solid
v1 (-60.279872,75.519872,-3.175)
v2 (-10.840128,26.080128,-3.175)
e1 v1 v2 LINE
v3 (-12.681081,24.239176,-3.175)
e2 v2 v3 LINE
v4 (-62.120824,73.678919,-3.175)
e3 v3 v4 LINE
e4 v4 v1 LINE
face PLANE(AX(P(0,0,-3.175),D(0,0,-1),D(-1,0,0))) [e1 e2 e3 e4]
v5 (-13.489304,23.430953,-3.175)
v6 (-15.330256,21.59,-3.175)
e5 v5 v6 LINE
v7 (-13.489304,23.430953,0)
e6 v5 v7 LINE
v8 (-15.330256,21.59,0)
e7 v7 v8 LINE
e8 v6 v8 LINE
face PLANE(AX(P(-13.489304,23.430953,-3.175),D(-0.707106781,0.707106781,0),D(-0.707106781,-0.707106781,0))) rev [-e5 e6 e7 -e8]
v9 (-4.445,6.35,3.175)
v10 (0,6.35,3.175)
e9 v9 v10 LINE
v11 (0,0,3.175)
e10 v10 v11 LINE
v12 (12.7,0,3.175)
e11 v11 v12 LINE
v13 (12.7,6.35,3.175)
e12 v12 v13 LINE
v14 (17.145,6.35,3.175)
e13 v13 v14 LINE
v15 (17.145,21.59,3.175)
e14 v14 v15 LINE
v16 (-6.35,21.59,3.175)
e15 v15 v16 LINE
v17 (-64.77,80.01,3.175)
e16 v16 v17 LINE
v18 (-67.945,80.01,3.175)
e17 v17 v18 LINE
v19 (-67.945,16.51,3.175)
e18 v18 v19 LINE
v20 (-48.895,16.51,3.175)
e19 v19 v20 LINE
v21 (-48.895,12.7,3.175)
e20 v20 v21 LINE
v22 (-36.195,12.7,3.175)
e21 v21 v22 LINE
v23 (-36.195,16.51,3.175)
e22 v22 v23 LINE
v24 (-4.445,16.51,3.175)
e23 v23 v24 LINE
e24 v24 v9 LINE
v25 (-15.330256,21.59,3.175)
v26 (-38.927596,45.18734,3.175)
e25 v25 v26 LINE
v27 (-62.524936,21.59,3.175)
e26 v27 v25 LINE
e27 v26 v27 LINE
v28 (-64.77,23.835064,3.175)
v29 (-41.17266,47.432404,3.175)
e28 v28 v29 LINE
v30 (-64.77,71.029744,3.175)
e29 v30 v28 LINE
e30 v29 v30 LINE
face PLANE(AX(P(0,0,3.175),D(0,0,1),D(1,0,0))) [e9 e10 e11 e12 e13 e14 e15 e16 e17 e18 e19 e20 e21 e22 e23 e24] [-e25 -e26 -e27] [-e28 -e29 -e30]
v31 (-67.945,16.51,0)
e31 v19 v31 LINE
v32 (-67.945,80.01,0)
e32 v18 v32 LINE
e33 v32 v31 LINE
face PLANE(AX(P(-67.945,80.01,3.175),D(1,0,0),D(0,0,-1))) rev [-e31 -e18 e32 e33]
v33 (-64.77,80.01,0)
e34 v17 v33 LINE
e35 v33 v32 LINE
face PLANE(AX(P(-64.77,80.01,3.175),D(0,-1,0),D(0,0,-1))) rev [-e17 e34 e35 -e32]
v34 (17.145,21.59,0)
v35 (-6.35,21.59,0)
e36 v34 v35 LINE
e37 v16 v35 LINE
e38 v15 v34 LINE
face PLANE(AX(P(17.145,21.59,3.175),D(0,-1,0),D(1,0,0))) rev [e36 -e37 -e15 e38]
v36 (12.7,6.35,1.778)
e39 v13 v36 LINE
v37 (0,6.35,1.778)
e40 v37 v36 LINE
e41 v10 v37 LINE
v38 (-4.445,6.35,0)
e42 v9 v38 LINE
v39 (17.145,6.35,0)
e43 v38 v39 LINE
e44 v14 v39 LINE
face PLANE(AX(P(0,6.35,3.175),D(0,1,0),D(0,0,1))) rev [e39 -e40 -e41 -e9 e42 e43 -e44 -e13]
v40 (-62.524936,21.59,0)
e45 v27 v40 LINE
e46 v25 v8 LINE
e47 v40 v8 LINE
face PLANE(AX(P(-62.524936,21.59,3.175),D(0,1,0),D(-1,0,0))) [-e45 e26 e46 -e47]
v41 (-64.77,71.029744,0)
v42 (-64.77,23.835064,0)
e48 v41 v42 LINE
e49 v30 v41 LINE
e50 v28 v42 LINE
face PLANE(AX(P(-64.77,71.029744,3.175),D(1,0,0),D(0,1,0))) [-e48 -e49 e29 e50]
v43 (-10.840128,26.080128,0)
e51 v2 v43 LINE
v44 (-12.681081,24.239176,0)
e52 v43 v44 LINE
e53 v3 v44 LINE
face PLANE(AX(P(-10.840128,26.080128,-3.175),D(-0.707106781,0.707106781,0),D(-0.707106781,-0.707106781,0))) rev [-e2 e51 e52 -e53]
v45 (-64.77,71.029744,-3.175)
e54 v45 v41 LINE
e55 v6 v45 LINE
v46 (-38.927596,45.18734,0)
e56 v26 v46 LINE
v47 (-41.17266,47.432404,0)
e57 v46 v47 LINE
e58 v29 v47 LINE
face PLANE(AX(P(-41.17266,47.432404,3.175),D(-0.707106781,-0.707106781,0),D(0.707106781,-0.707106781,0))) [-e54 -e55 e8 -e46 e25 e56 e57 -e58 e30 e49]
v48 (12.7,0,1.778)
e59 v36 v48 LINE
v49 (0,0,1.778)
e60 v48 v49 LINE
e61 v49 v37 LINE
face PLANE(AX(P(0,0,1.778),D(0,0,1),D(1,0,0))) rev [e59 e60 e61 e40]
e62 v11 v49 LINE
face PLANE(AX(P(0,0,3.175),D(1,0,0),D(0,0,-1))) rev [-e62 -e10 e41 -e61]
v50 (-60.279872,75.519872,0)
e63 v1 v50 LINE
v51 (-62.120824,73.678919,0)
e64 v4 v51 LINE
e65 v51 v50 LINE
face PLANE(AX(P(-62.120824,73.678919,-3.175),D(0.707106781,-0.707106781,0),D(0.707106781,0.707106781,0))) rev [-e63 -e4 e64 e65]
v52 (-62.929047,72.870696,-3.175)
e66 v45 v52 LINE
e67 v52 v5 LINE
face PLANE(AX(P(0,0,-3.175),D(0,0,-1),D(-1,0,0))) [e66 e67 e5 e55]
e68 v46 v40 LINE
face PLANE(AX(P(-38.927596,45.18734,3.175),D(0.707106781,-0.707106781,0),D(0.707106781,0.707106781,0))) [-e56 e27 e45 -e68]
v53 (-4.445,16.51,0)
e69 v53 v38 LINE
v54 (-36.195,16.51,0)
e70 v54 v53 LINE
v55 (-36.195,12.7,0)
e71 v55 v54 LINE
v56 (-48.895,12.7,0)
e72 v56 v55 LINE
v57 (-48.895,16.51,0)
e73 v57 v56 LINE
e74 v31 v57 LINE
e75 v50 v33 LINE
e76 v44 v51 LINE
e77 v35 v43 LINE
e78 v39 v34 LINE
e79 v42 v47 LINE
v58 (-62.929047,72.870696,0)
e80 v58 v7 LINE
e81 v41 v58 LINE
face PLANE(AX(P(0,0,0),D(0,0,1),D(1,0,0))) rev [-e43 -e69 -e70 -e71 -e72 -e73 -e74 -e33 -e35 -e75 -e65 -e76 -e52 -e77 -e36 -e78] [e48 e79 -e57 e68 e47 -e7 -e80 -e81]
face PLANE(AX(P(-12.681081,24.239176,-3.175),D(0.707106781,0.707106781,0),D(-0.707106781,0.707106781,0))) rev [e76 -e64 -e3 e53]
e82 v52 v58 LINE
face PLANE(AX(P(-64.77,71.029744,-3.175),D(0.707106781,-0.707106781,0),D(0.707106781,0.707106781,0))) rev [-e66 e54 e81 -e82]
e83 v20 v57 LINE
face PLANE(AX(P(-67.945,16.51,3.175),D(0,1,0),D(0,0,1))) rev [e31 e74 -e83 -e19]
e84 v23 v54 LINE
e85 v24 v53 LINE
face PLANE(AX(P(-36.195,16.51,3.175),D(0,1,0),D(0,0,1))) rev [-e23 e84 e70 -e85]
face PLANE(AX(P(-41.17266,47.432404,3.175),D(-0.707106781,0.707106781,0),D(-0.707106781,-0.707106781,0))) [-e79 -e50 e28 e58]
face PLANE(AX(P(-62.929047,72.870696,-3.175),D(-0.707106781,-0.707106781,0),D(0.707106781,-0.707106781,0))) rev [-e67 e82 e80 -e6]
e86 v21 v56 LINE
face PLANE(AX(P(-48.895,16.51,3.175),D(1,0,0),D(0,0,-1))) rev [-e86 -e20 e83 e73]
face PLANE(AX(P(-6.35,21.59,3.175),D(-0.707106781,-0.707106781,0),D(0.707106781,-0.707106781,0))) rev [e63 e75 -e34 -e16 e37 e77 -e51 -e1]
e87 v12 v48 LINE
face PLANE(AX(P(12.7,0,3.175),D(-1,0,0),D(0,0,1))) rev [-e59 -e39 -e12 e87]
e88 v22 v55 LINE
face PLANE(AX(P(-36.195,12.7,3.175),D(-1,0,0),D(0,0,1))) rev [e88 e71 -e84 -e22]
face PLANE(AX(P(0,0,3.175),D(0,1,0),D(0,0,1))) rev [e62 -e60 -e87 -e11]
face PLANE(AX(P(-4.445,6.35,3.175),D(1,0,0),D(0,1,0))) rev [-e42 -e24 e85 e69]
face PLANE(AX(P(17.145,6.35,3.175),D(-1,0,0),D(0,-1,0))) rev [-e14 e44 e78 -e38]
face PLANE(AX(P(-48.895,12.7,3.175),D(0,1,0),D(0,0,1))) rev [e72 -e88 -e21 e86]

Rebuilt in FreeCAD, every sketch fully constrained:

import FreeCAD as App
import Part
import Sketcher
from FreeCAD import Vector
Q = App.Units.Quantity

doc = App.newDocument("Part")
body = doc.addObject("PartDesign::Body", "Body")

# Sketch on XY plane
sketch1 = doc.addObject("Sketcher::SketchObject", "Sketch")
body.addObject(sketch1)
sketch1.AttachmentSupport = (doc.XY_Plane, [""])
sketch1.MapMode = "FlatFace"
sketch1.addGeometry(Part.LineSegment(Vector(0, 0, 0), Vector(12.7, 0, 0)), False)
sketch1.addGeometry(Part.LineSegment(Vector(12.7, 0, 0), Vector(12.7, 6.3, 0)), False)
sketch1.addGeometry(Part.LineSegment(Vector(12.7, 6.3, 0), Vector(17.1, 6.3, 0)), False)
sketch1.addGeometry(Part.LineSegment(Vector(17.1, 6.3, 0), Vector(17.1, 21.6, 0)), False)
sketch1.addGeometry(Part.LineSegment(Vector(17.1, 21.6, 0), Vector(-6.3, 21.6, 0)), False)
sketch1.addGeometry(Part.LineSegment(Vector(-6.3, 21.6, 0), Vector(-64.8, 80, 0)), False)
sketch1.addGeometry(Part.LineSegment(Vector(-64.8, 80, 0), Vector(-67.9, 80, 0)), False)
sketch1.addGeometry(Part.LineSegment(Vector(-67.9, 80, 0), Vector(-67.9, 16.5, 0)), False)
sketch1.addGeometry(Part.LineSegment(Vector(-67.9, 16.5, 0), Vector(-48.9, 16.5, 0)), False)
sketch1.addGeometry(Part.LineSegment(Vector(-48.9, 16.5, 0), Vector(-48.9, 12.7, 0)), False)
sketch1.addGeometry(Part.LineSegment(Vector(-48.9, 12.7, 0), Vector(-36.2, 12.7, 0)), False)
sketch1.addGeometry(Part.LineSegment(Vector(-36.2, 12.7, 0), Vector(-36.2, 16.5, 0)), False)
sketch1.addGeometry(Part.LineSegment(Vector(-36.2, 16.5, 0), Vector(-4.4, 16.5, 0)), False)
sketch1.addGeometry(Part.LineSegment(Vector(-4.4, 16.5, 0), Vector(-4.4, 6.3, 0)), False)
sketch1.addGeometry(Part.LineSegment(Vector(-4.4, 6.3, 0), Vector(0, 6.3, 0)), False)
sketch1.addGeometry(Part.LineSegment(Vector(0, 6.3, 0), Vector(0, 0, 0)), False)
sketch1.addGeometry(Part.LineSegment(Vector(-15.3, 21.6, 0), Vector(-62.5, 21.6, 0)), False)
sketch1.addGeometry(Part.LineSegment(Vector(-62.5, 21.6, 0), Vector(-38.9, 45.2, 0)), False)
sketch1.addGeometry(Part.LineSegment(Vector(-38.9, 45.2, 0), Vector(-15.3, 21.6, 0)), False)
sketch1.addGeometry(Part.LineSegment(Vector(-64.8, 23.8, 0), Vector(-64.8, 71, 0)), False)
sketch1.addGeometry(Part.LineSegment(Vector(-64.8, 71, 0), Vector(-41.2, 47.4, 0)), False)
sketch1.addGeometry(Part.LineSegment(Vector(-41.2, 47.4, 0), Vector(-64.8, 23.8, 0)), False)
sketch1.addConstraint(Sketcher.Constraint("Coincident", 0, 2, 1, 1))
sketch1.addConstraint(Sketcher.Constraint("Coincident", 1, 2, 2, 1))
sketch1.addConstraint(Sketcher.Constraint("Coincident", 2, 2, 3, 1))
sketch1.addConstraint(Sketcher.Constraint("Coincident", 3, 2, 4, 1))
sketch1.addConstraint(Sketcher.Constraint("Coincident", 4, 2, 5, 1))
sketch1.addConstraint(Sketcher.Constraint("Coincident", 5, 2, 6, 1))
sketch1.addConstraint(Sketcher.Constraint("Coincident", 6, 2, 7, 1))
sketch1.addConstraint(Sketcher.Constraint("Coincident", 7, 2, 8, 1))
sketch1.addConstraint(Sketcher.Constraint("Coincident", 8, 2, 9, 1))
sketch1.addConstraint(Sketcher.Constraint("Coincident", 9, 2, 10, 1))
sketch1.addConstraint(Sketcher.Constraint("Coincident", 10, 2, 11, 1))
sketch1.addConstraint(Sketcher.Constraint("Coincident", 11, 2, 12, 1))
sketch1.addConstraint(Sketcher.Constraint("Coincident", 12, 2, 13, 1))
sketch1.addConstraint(Sketcher.Constraint("Coincident", 13, 2, 14, 1))
sketch1.addConstraint(Sketcher.Constraint("Coincident", 14, 2, 15, 1))
sketch1.addConstraint(Sketcher.Constraint("Coincident", 15, 2, 0, 1))
sketch1.addConstraint(Sketcher.Constraint("Coincident", 16, 2, 17, 1))
sketch1.addConstraint(Sketcher.Constraint("Coincident", 17, 2, 18, 1))
sketch1.addConstraint(Sketcher.Constraint("Coincident", 18, 2, 16, 1))
sketch1.addConstraint(Sketcher.Constraint("Coincident", 19, 2, 20, 1))
sketch1.addConstraint(Sketcher.Constraint("Coincident", 20, 2, 21, 1))
sketch1.addConstraint(Sketcher.Constraint("Coincident", 21, 2, 19, 1))
sketch1.addConstraint(Sketcher.Constraint("Horizontal", 0))
sketch1.addConstraint(Sketcher.Constraint("Vertical", 1))
sketch1.addConstraint(Sketcher.Constraint("Horizontal", 2))
sketch1.addConstraint(Sketcher.Constraint("Vertical", 3))
sketch1.addConstraint(Sketcher.Constraint("Horizontal", 4))
sketch1.addConstraint(Sketcher.Constraint("Horizontal", 6))
sketch1.addConstraint(Sketcher.Constraint("Vertical", 7))
sketch1.addConstraint(Sketcher.Constraint("Horizontal", 8))
sketch1.addConstraint(Sketcher.Constraint("Vertical", 9))
sketch1.addConstraint(Sketcher.Constraint("Horizontal", 10))
sketch1.addConstraint(Sketcher.Constraint("Vertical", 11))
sketch1.addConstraint(Sketcher.Constraint("Horizontal", 12))
sketch1.addConstraint(Sketcher.Constraint("Vertical", 13))
sketch1.addConstraint(Sketcher.Constraint("Horizontal", 14))
sketch1.addConstraint(Sketcher.Constraint("Vertical", 15))
sketch1.addConstraint(Sketcher.Constraint("Horizontal", 16))
sketch1.addConstraint(Sketcher.Constraint("Vertical", 19))
sketch1.addConstraint(Sketcher.Constraint("Coincident", 15, 2, -1, 1))
sketch1.addConstraint(Sketcher.Constraint("Perpendicular", 5, 17))
sketch1.addConstraint(Sketcher.Constraint("Perpendicular", 17, 18))
sketch1.addConstraint(Sketcher.Constraint("Parallel", 18, 20))
sketch1.addConstraint(Sketcher.Constraint("Perpendicular", 20, 21))
sketch1.addConstraint(Sketcher.Constraint("Horizontal", 8, 2, 11, 2))
sketch1.addConstraint(Sketcher.Constraint("Horizontal", 2, 2, 13, 2))
sketch1.addConstraint(Sketcher.Constraint("Horizontal", 4, 2, 16, 2))
sketch1.addConstraint(Sketcher.Constraint("Vertical", 5, 2, 19, 2))
sketch1.addConstraint(Sketcher.Constraint("Equal", 0, 10))
sketch1.addConstraint(Sketcher.Constraint("Equal", 2, 14))
sketch1.addConstraint(Sketcher.Constraint("Equal", 16, 19))
sketch1.addConstraint(Sketcher.Constraint("Equal", 17, 18))
sketch1.addConstraint(Sketcher.Constraint("DistanceX", 0, 1, 0, 2, Q("0.5 in")))
sketch1.addConstraint(Sketcher.Constraint("DistanceY", 3, 1, 3, 2, Q("0.6 in")))
sketch1.addConstraint(Sketcher.Constraint("DistanceY", 7, 2, 7, 1, Q("2.5 in")))
sketch1.addConstraint(Sketcher.Constraint("DistanceY", 13, 2, 13, 1, Q("0.4 in")))
sketch1.addConstraint(Sketcher.Constraint("DistanceX", 8, 1, 8, 2, Q("0.75 in")))
sketch1.addConstraint(Sketcher.Constraint("DistanceX", 12, 1, 12, 2, Q("1.25 in")))
sketch1.addConstraint(Sketcher.Constraint("DistanceY", 1, 1, 1, 2, Q("0.25 in")))
sketch1.addConstraint(Sketcher.Constraint("DistanceY", 9, 2, 9, 1, Q("0.15 in")))
sketch1.addConstraint(Sketcher.Constraint("DistanceX", 2, 1, 2, 2, Q("0.175 in")))
sketch1.addConstraint(Sketcher.Constraint("DistanceX", 4, 2, 4, 1, Q("0.925 in")))
sketch1.addConstraint(Sketcher.Constraint("DistanceX", 16, 2, 16, 1, 47.19468))
sketch1.addConstraint(Sketcher.Constraint("DistanceX", 16, 2, -1, 1, 62.524936))
sketch1.addConstraint(Sketcher.Constraint("DistanceY", -1, 1, 19, 2, 71.029744))
pad1 = doc.addObject("PartDesign::Pad", "Pad")
body.addObject(pad1)
pad1.Profile = sketch1
pad1.Length = Q("0.125 in")

# Sketch on XY plane
sketch2 = doc.addObject("Sketcher::SketchObject", "Sketch001")
body.addObject(sketch2)
sketch2.AttachmentSupport = (doc.XY_Plane, [""])
sketch2.MapMode = "FlatFace"
sketch2.addGeometry(Part.LineSegment(Vector(13, 6, 0), Vector(13, 0, 0)), False)
sketch2.addGeometry(Part.LineSegment(Vector(13, 0, 0), Vector(0, 0, 0)), False)
sketch2.addGeometry(Part.LineSegment(Vector(0, 0, 0), Vector(0, 6, 0)), False)
sketch2.addGeometry(Part.LineSegment(Vector(0, 6, 0), Vector(13, 6, 0)), False)
sketch2.addConstraint(Sketcher.Constraint("Coincident", 0, 2, 1, 1))
sketch2.addConstraint(Sketcher.Constraint("Coincident", 1, 2, 2, 1))
sketch2.addConstraint(Sketcher.Constraint("Coincident", 2, 2, 3, 1))
sketch2.addConstraint(Sketcher.Constraint("Coincident", 3, 2, 0, 1))
sketch2.addConstraint(Sketcher.Constraint("Vertical", 0))
sketch2.addConstraint(Sketcher.Constraint("Horizontal", 1))
sketch2.addConstraint(Sketcher.Constraint("Vertical", 2))
sketch2.addConstraint(Sketcher.Constraint("Horizontal", 3))
sketch2.addConstraint(Sketcher.Constraint("Coincident", 1, 2, -1, 1))
sketch2.addConstraint(Sketcher.Constraint("DistanceX", 1, 2, 1, 1, Q("0.5 in")))
sketch2.addConstraint(Sketcher.Constraint("DistanceY", 0, 2, 0, 1, Q("0.25 in")))
pocket1 = doc.addObject("PartDesign::Pocket", "Pocket")
body.addObject(pocket1)
pocket1.Profile = sketch2
pocket1.Length = Q("0.07 in")
pocket1.Reversed = True

# Sketch on XY plane
sketch3 = doc.addObject("Sketcher::SketchObject", "Sketch002")
body.addObject(sketch3)
sketch3.AttachmentSupport = (doc.XY_Plane, [""])
sketch3.MapMode = "FlatFace"
sketch3.addGeometry(Part.LineSegment(Vector(-15.3, 21.6, 0), Vector(-64.8, 71, 0)), False)
sketch3.addGeometry(Part.LineSegment(Vector(-64.8, 71, 0), Vector(-62.9, 72.9, 0)), False)
sketch3.addGeometry(Part.LineSegment(Vector(-62.9, 72.9, 0), Vector(-13.5, 23.4, 0)), False)
sketch3.addGeometry(Part.LineSegment(Vector(-13.5, 23.4, 0), Vector(-15.3, 21.6, 0)), False)
sketch3.addGeometry(Part.LineSegment(Vector(-10.8, 26.1, 0), Vector(-12.7, 24.2, 0)), False)
sketch3.addGeometry(Part.LineSegment(Vector(-12.7, 24.2, 0), Vector(-62.1, 73.7, 0)), False)
sketch3.addGeometry(Part.LineSegment(Vector(-62.1, 73.7, 0), Vector(-60.3, 75.5, 0)), False)
sketch3.addGeometry(Part.LineSegment(Vector(-60.3, 75.5, 0), Vector(-10.8, 26.1, 0)), False)
sketch3.addConstraint(Sketcher.Constraint("Coincident", 0, 2, 1, 1))
sketch3.addConstraint(Sketcher.Constraint("Coincident", 1, 2, 2, 1))
sketch3.addConstraint(Sketcher.Constraint("Coincident", 2, 2, 3, 1))
sketch3.addConstraint(Sketcher.Constraint("Coincident", 3, 2, 0, 1))
sketch3.addConstraint(Sketcher.Constraint("Coincident", 4, 2, 5, 1))
sketch3.addConstraint(Sketcher.Constraint("Coincident", 5, 2, 6, 1))
sketch3.addConstraint(Sketcher.Constraint("Coincident", 6, 2, 7, 1))
sketch3.addConstraint(Sketcher.Constraint("Coincident", 7, 2, 4, 1))
sketch3.addConstraint(Sketcher.Constraint("Perpendicular", 0, 1))
sketch3.addConstraint(Sketcher.Constraint("Perpendicular", 1, 2))
sketch3.addConstraint(Sketcher.Constraint("Perpendicular", 2, 3))
sketch3.addConstraint(Sketcher.Constraint("Parallel", 3, 4))
sketch3.addConstraint(Sketcher.Constraint("Perpendicular", 4, 5))
sketch3.addConstraint(Sketcher.Constraint("Perpendicular", 5, 6))
sketch3.addConstraint(Sketcher.Constraint("Perpendicular", 6, 7))
sketch3.addConstraint(Sketcher.Constraint("Equal", 3, 4))
sketch3.addConstraint(Sketcher.Constraint("Equal", 2, 5))
sketch3.addConstraint(Sketcher.Constraint("Angle", 0, Q("135 deg")))
sketch3.addConstraint(Sketcher.Constraint("DistanceX", 0, 2, -1, 1, Q("2.55 in")))
sketch3.addConstraint(Sketcher.Constraint("DistanceY", -1, 1, 3, 2, Q("0.85 in")))
sketch3.addConstraint(Sketcher.Constraint("Distance", 1, Q("0.1025 in")))
sketch3.addConstraint(Sketcher.Constraint("DistanceX", 4, 2, -1, 1, 12.681081))
sketch3.addConstraint(Sketcher.Constraint("DistanceY", -1, 1, 5, 2, 73.678919))
sketch3.addConstraint(Sketcher.Constraint("DistanceX", 6, 2, -1, 1, 60.279872))
pad2 = doc.addObject("PartDesign::Pad", "Pad001")
body.addObject(pad2)
pad2.Profile = sketch3
pad2.Length = Q("0.125 in")
pad2.Reversed = True

doc.recompute()
